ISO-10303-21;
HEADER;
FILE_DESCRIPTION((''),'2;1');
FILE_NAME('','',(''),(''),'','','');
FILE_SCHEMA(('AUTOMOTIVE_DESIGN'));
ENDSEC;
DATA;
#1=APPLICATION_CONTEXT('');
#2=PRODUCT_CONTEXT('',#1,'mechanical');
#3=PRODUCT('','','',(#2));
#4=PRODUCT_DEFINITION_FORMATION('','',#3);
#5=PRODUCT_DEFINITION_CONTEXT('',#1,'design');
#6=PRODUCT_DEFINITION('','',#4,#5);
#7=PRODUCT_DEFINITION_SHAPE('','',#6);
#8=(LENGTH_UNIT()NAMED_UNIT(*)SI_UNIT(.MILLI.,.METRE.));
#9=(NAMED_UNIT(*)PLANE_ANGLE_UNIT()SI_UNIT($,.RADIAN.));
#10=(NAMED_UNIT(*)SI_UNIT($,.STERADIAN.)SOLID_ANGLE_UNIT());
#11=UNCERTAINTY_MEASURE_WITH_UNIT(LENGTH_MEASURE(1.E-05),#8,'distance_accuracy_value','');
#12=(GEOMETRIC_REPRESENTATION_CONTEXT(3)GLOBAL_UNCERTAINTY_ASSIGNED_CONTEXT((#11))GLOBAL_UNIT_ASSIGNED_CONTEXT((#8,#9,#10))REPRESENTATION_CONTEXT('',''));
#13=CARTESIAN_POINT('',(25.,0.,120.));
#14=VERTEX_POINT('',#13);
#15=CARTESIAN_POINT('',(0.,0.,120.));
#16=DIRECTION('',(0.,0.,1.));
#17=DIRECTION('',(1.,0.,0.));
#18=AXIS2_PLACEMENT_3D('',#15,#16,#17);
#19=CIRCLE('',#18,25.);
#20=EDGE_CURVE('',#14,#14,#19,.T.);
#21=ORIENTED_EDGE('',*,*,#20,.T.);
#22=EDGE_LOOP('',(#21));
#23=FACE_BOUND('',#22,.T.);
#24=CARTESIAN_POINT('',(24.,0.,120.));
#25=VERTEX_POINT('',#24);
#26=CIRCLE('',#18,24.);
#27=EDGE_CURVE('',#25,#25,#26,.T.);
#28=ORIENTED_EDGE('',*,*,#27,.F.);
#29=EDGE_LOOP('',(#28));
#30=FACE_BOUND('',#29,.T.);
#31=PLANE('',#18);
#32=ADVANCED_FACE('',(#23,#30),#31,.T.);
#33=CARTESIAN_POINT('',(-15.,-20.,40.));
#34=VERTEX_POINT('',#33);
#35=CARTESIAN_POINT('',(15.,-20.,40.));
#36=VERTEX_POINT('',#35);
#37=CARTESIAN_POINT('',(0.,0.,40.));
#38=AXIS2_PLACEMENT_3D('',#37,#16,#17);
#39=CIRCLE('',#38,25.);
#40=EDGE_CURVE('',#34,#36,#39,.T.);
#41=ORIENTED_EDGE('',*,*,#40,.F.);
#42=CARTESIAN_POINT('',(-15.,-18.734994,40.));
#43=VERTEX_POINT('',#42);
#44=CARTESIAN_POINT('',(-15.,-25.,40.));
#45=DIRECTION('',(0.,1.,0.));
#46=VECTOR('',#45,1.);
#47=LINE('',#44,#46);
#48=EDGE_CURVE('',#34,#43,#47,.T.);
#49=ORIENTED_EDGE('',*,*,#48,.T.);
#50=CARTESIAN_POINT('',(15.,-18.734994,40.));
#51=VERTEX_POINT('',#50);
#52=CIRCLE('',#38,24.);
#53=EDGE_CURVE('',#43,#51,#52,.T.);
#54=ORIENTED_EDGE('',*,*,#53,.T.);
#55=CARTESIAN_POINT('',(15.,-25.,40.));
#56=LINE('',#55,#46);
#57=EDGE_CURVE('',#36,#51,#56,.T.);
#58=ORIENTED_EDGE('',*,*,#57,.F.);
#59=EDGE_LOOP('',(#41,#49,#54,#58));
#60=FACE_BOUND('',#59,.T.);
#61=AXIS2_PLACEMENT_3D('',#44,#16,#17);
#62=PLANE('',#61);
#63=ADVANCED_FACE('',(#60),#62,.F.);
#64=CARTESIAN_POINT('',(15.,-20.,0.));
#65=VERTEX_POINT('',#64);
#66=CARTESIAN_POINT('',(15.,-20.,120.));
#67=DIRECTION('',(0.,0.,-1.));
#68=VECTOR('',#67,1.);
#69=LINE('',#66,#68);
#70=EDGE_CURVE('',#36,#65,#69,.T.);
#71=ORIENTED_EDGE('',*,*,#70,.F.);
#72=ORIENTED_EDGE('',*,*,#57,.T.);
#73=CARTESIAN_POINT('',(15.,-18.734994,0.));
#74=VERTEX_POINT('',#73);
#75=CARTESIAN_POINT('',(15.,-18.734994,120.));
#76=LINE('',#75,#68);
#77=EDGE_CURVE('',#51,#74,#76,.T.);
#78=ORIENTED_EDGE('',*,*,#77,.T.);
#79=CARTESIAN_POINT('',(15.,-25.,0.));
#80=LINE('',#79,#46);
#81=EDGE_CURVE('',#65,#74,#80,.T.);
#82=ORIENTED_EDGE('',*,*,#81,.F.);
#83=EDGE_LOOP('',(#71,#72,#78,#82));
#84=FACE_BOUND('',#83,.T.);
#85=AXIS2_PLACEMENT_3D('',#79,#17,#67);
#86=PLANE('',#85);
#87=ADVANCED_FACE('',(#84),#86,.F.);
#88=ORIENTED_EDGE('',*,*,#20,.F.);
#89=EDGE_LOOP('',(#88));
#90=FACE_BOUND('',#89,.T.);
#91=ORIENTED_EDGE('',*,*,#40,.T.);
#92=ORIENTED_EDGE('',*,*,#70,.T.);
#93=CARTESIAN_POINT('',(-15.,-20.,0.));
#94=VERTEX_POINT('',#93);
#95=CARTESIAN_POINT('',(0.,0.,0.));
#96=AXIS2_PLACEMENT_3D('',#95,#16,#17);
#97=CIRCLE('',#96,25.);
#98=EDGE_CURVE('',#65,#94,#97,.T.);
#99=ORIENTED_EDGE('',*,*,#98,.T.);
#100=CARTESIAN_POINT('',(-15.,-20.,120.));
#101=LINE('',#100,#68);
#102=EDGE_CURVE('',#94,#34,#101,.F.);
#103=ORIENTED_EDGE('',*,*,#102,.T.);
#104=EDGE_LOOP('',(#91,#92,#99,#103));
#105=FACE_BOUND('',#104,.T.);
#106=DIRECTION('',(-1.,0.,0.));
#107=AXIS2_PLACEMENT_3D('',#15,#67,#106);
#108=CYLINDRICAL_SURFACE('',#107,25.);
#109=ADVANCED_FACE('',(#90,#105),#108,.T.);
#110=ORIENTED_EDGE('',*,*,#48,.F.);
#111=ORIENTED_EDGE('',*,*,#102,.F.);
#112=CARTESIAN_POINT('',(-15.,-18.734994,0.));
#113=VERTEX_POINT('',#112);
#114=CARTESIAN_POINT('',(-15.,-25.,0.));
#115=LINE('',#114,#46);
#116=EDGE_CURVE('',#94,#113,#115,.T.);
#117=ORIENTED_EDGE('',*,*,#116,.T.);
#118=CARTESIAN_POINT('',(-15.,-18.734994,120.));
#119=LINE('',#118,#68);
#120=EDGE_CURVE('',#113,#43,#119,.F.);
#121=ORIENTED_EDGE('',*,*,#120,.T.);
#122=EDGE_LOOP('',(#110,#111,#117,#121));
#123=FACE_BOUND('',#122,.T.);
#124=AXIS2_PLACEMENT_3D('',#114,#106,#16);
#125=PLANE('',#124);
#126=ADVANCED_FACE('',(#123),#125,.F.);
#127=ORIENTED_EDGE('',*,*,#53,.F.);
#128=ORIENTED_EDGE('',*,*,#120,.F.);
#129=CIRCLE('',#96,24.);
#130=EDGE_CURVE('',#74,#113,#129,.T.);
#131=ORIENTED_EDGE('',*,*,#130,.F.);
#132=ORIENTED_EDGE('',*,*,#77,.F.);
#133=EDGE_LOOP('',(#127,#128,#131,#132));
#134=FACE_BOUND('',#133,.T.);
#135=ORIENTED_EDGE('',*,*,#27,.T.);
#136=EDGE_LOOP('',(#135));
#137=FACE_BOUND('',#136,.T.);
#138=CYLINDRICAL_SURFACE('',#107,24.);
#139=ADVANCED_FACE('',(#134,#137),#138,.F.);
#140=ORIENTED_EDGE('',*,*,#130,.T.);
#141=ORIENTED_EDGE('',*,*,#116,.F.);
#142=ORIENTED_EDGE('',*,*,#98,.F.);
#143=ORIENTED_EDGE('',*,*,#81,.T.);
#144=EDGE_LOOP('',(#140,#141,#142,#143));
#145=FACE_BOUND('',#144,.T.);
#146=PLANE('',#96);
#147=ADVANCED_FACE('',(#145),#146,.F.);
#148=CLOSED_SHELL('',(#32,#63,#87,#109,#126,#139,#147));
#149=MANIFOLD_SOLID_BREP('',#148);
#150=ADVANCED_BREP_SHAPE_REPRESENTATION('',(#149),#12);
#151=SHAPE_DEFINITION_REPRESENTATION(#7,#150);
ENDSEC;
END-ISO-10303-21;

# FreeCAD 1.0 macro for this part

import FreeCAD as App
import Part
import Sketcher

V = App.Vector
Q = App.Units.Quantity


def add_polygon(sketch, points):
    """Adds a closed chain of lines whose ends are joined by coincident constraints."""
    first, n = sketch.GeometryCount, len(points)
    for a, b in zip(points, points[1:] + points[:1]):
        sketch.addGeometry(Part.LineSegment(App.Vector(*a, 0), App.Vector(*b, 0)), False)
    for i in range(n):
        sketch.addConstraint(Sketcher.Constraint("Coincident", first + i, 2, first + (i + 1) % n, 1))

doc = App.newDocument("Part")
body = doc.addObject("PartDesign::Body", "Body")

sketch1 = doc.addObject("Sketcher::SketchObject", "Sketch")
body.addObject(sketch1)
sketch1.AttachmentSupport = (doc.XY_Plane, [""])
sketch1.MapMode = "FlatFace"
sketch1.addGeometry([
    Part.Circle(V(0, 0, 0), V(0, 0, 1), 25),
    Part.Circle(V(0, 0, 0), V(0, 0, 1), 24),
], False)
sketch1.addConstraint([
    Sketcher.Constraint("Coincident", 0, 3, -1, 1),
    Sketcher.Constraint("Coincident", 1, 3, -1, 1),
    Sketcher.Constraint("Diameter", 0, Q("50 mm")),
    Sketcher.Constraint("Diameter", 1, Q("48 mm")),
])
pad1 = doc.addObject("PartDesign::Pad", "Pad")
body.addObject(pad1)
pad1.Profile = sketch1
pad1.Length = 120

sketch2 = doc.addObject("Sketcher::SketchObject", "Sketch001")
body.addObject(sketch2)
sketch2.AttachmentSupport = (doc.XZ_Plane, [""])
sketch2.MapMode = "FlatFace"
add_polygon(sketch2, [(-15, 0), (-15, 40), (15, 40), (15, 0)])
sketch2.addConstraint([
    Sketcher.Constraint("Vertical", 0),
    Sketcher.Constraint("Horizontal", 1),
    Sketcher.Constraint("Vertical", 2),
    Sketcher.Constraint("Horizontal", 3),
    Sketcher.Constraint("Symmetric", 2, 2, 3, 2, -1, 1),
    Sketcher.Constraint("DistanceX", 1, 1, 1, 2, Q("30 mm")),
    Sketcher.Constraint("DistanceY", 0, 1, 0, 2, Q("40 mm")),
])
pocket1 = doc.addObject("PartDesign::Pocket", "Pocket")
body.addObject(pocket1)
pocket1.Profile = sketch2
pocket1.Type = "ThroughAll"
pocket1.Reversed = True

doc.recompute()
